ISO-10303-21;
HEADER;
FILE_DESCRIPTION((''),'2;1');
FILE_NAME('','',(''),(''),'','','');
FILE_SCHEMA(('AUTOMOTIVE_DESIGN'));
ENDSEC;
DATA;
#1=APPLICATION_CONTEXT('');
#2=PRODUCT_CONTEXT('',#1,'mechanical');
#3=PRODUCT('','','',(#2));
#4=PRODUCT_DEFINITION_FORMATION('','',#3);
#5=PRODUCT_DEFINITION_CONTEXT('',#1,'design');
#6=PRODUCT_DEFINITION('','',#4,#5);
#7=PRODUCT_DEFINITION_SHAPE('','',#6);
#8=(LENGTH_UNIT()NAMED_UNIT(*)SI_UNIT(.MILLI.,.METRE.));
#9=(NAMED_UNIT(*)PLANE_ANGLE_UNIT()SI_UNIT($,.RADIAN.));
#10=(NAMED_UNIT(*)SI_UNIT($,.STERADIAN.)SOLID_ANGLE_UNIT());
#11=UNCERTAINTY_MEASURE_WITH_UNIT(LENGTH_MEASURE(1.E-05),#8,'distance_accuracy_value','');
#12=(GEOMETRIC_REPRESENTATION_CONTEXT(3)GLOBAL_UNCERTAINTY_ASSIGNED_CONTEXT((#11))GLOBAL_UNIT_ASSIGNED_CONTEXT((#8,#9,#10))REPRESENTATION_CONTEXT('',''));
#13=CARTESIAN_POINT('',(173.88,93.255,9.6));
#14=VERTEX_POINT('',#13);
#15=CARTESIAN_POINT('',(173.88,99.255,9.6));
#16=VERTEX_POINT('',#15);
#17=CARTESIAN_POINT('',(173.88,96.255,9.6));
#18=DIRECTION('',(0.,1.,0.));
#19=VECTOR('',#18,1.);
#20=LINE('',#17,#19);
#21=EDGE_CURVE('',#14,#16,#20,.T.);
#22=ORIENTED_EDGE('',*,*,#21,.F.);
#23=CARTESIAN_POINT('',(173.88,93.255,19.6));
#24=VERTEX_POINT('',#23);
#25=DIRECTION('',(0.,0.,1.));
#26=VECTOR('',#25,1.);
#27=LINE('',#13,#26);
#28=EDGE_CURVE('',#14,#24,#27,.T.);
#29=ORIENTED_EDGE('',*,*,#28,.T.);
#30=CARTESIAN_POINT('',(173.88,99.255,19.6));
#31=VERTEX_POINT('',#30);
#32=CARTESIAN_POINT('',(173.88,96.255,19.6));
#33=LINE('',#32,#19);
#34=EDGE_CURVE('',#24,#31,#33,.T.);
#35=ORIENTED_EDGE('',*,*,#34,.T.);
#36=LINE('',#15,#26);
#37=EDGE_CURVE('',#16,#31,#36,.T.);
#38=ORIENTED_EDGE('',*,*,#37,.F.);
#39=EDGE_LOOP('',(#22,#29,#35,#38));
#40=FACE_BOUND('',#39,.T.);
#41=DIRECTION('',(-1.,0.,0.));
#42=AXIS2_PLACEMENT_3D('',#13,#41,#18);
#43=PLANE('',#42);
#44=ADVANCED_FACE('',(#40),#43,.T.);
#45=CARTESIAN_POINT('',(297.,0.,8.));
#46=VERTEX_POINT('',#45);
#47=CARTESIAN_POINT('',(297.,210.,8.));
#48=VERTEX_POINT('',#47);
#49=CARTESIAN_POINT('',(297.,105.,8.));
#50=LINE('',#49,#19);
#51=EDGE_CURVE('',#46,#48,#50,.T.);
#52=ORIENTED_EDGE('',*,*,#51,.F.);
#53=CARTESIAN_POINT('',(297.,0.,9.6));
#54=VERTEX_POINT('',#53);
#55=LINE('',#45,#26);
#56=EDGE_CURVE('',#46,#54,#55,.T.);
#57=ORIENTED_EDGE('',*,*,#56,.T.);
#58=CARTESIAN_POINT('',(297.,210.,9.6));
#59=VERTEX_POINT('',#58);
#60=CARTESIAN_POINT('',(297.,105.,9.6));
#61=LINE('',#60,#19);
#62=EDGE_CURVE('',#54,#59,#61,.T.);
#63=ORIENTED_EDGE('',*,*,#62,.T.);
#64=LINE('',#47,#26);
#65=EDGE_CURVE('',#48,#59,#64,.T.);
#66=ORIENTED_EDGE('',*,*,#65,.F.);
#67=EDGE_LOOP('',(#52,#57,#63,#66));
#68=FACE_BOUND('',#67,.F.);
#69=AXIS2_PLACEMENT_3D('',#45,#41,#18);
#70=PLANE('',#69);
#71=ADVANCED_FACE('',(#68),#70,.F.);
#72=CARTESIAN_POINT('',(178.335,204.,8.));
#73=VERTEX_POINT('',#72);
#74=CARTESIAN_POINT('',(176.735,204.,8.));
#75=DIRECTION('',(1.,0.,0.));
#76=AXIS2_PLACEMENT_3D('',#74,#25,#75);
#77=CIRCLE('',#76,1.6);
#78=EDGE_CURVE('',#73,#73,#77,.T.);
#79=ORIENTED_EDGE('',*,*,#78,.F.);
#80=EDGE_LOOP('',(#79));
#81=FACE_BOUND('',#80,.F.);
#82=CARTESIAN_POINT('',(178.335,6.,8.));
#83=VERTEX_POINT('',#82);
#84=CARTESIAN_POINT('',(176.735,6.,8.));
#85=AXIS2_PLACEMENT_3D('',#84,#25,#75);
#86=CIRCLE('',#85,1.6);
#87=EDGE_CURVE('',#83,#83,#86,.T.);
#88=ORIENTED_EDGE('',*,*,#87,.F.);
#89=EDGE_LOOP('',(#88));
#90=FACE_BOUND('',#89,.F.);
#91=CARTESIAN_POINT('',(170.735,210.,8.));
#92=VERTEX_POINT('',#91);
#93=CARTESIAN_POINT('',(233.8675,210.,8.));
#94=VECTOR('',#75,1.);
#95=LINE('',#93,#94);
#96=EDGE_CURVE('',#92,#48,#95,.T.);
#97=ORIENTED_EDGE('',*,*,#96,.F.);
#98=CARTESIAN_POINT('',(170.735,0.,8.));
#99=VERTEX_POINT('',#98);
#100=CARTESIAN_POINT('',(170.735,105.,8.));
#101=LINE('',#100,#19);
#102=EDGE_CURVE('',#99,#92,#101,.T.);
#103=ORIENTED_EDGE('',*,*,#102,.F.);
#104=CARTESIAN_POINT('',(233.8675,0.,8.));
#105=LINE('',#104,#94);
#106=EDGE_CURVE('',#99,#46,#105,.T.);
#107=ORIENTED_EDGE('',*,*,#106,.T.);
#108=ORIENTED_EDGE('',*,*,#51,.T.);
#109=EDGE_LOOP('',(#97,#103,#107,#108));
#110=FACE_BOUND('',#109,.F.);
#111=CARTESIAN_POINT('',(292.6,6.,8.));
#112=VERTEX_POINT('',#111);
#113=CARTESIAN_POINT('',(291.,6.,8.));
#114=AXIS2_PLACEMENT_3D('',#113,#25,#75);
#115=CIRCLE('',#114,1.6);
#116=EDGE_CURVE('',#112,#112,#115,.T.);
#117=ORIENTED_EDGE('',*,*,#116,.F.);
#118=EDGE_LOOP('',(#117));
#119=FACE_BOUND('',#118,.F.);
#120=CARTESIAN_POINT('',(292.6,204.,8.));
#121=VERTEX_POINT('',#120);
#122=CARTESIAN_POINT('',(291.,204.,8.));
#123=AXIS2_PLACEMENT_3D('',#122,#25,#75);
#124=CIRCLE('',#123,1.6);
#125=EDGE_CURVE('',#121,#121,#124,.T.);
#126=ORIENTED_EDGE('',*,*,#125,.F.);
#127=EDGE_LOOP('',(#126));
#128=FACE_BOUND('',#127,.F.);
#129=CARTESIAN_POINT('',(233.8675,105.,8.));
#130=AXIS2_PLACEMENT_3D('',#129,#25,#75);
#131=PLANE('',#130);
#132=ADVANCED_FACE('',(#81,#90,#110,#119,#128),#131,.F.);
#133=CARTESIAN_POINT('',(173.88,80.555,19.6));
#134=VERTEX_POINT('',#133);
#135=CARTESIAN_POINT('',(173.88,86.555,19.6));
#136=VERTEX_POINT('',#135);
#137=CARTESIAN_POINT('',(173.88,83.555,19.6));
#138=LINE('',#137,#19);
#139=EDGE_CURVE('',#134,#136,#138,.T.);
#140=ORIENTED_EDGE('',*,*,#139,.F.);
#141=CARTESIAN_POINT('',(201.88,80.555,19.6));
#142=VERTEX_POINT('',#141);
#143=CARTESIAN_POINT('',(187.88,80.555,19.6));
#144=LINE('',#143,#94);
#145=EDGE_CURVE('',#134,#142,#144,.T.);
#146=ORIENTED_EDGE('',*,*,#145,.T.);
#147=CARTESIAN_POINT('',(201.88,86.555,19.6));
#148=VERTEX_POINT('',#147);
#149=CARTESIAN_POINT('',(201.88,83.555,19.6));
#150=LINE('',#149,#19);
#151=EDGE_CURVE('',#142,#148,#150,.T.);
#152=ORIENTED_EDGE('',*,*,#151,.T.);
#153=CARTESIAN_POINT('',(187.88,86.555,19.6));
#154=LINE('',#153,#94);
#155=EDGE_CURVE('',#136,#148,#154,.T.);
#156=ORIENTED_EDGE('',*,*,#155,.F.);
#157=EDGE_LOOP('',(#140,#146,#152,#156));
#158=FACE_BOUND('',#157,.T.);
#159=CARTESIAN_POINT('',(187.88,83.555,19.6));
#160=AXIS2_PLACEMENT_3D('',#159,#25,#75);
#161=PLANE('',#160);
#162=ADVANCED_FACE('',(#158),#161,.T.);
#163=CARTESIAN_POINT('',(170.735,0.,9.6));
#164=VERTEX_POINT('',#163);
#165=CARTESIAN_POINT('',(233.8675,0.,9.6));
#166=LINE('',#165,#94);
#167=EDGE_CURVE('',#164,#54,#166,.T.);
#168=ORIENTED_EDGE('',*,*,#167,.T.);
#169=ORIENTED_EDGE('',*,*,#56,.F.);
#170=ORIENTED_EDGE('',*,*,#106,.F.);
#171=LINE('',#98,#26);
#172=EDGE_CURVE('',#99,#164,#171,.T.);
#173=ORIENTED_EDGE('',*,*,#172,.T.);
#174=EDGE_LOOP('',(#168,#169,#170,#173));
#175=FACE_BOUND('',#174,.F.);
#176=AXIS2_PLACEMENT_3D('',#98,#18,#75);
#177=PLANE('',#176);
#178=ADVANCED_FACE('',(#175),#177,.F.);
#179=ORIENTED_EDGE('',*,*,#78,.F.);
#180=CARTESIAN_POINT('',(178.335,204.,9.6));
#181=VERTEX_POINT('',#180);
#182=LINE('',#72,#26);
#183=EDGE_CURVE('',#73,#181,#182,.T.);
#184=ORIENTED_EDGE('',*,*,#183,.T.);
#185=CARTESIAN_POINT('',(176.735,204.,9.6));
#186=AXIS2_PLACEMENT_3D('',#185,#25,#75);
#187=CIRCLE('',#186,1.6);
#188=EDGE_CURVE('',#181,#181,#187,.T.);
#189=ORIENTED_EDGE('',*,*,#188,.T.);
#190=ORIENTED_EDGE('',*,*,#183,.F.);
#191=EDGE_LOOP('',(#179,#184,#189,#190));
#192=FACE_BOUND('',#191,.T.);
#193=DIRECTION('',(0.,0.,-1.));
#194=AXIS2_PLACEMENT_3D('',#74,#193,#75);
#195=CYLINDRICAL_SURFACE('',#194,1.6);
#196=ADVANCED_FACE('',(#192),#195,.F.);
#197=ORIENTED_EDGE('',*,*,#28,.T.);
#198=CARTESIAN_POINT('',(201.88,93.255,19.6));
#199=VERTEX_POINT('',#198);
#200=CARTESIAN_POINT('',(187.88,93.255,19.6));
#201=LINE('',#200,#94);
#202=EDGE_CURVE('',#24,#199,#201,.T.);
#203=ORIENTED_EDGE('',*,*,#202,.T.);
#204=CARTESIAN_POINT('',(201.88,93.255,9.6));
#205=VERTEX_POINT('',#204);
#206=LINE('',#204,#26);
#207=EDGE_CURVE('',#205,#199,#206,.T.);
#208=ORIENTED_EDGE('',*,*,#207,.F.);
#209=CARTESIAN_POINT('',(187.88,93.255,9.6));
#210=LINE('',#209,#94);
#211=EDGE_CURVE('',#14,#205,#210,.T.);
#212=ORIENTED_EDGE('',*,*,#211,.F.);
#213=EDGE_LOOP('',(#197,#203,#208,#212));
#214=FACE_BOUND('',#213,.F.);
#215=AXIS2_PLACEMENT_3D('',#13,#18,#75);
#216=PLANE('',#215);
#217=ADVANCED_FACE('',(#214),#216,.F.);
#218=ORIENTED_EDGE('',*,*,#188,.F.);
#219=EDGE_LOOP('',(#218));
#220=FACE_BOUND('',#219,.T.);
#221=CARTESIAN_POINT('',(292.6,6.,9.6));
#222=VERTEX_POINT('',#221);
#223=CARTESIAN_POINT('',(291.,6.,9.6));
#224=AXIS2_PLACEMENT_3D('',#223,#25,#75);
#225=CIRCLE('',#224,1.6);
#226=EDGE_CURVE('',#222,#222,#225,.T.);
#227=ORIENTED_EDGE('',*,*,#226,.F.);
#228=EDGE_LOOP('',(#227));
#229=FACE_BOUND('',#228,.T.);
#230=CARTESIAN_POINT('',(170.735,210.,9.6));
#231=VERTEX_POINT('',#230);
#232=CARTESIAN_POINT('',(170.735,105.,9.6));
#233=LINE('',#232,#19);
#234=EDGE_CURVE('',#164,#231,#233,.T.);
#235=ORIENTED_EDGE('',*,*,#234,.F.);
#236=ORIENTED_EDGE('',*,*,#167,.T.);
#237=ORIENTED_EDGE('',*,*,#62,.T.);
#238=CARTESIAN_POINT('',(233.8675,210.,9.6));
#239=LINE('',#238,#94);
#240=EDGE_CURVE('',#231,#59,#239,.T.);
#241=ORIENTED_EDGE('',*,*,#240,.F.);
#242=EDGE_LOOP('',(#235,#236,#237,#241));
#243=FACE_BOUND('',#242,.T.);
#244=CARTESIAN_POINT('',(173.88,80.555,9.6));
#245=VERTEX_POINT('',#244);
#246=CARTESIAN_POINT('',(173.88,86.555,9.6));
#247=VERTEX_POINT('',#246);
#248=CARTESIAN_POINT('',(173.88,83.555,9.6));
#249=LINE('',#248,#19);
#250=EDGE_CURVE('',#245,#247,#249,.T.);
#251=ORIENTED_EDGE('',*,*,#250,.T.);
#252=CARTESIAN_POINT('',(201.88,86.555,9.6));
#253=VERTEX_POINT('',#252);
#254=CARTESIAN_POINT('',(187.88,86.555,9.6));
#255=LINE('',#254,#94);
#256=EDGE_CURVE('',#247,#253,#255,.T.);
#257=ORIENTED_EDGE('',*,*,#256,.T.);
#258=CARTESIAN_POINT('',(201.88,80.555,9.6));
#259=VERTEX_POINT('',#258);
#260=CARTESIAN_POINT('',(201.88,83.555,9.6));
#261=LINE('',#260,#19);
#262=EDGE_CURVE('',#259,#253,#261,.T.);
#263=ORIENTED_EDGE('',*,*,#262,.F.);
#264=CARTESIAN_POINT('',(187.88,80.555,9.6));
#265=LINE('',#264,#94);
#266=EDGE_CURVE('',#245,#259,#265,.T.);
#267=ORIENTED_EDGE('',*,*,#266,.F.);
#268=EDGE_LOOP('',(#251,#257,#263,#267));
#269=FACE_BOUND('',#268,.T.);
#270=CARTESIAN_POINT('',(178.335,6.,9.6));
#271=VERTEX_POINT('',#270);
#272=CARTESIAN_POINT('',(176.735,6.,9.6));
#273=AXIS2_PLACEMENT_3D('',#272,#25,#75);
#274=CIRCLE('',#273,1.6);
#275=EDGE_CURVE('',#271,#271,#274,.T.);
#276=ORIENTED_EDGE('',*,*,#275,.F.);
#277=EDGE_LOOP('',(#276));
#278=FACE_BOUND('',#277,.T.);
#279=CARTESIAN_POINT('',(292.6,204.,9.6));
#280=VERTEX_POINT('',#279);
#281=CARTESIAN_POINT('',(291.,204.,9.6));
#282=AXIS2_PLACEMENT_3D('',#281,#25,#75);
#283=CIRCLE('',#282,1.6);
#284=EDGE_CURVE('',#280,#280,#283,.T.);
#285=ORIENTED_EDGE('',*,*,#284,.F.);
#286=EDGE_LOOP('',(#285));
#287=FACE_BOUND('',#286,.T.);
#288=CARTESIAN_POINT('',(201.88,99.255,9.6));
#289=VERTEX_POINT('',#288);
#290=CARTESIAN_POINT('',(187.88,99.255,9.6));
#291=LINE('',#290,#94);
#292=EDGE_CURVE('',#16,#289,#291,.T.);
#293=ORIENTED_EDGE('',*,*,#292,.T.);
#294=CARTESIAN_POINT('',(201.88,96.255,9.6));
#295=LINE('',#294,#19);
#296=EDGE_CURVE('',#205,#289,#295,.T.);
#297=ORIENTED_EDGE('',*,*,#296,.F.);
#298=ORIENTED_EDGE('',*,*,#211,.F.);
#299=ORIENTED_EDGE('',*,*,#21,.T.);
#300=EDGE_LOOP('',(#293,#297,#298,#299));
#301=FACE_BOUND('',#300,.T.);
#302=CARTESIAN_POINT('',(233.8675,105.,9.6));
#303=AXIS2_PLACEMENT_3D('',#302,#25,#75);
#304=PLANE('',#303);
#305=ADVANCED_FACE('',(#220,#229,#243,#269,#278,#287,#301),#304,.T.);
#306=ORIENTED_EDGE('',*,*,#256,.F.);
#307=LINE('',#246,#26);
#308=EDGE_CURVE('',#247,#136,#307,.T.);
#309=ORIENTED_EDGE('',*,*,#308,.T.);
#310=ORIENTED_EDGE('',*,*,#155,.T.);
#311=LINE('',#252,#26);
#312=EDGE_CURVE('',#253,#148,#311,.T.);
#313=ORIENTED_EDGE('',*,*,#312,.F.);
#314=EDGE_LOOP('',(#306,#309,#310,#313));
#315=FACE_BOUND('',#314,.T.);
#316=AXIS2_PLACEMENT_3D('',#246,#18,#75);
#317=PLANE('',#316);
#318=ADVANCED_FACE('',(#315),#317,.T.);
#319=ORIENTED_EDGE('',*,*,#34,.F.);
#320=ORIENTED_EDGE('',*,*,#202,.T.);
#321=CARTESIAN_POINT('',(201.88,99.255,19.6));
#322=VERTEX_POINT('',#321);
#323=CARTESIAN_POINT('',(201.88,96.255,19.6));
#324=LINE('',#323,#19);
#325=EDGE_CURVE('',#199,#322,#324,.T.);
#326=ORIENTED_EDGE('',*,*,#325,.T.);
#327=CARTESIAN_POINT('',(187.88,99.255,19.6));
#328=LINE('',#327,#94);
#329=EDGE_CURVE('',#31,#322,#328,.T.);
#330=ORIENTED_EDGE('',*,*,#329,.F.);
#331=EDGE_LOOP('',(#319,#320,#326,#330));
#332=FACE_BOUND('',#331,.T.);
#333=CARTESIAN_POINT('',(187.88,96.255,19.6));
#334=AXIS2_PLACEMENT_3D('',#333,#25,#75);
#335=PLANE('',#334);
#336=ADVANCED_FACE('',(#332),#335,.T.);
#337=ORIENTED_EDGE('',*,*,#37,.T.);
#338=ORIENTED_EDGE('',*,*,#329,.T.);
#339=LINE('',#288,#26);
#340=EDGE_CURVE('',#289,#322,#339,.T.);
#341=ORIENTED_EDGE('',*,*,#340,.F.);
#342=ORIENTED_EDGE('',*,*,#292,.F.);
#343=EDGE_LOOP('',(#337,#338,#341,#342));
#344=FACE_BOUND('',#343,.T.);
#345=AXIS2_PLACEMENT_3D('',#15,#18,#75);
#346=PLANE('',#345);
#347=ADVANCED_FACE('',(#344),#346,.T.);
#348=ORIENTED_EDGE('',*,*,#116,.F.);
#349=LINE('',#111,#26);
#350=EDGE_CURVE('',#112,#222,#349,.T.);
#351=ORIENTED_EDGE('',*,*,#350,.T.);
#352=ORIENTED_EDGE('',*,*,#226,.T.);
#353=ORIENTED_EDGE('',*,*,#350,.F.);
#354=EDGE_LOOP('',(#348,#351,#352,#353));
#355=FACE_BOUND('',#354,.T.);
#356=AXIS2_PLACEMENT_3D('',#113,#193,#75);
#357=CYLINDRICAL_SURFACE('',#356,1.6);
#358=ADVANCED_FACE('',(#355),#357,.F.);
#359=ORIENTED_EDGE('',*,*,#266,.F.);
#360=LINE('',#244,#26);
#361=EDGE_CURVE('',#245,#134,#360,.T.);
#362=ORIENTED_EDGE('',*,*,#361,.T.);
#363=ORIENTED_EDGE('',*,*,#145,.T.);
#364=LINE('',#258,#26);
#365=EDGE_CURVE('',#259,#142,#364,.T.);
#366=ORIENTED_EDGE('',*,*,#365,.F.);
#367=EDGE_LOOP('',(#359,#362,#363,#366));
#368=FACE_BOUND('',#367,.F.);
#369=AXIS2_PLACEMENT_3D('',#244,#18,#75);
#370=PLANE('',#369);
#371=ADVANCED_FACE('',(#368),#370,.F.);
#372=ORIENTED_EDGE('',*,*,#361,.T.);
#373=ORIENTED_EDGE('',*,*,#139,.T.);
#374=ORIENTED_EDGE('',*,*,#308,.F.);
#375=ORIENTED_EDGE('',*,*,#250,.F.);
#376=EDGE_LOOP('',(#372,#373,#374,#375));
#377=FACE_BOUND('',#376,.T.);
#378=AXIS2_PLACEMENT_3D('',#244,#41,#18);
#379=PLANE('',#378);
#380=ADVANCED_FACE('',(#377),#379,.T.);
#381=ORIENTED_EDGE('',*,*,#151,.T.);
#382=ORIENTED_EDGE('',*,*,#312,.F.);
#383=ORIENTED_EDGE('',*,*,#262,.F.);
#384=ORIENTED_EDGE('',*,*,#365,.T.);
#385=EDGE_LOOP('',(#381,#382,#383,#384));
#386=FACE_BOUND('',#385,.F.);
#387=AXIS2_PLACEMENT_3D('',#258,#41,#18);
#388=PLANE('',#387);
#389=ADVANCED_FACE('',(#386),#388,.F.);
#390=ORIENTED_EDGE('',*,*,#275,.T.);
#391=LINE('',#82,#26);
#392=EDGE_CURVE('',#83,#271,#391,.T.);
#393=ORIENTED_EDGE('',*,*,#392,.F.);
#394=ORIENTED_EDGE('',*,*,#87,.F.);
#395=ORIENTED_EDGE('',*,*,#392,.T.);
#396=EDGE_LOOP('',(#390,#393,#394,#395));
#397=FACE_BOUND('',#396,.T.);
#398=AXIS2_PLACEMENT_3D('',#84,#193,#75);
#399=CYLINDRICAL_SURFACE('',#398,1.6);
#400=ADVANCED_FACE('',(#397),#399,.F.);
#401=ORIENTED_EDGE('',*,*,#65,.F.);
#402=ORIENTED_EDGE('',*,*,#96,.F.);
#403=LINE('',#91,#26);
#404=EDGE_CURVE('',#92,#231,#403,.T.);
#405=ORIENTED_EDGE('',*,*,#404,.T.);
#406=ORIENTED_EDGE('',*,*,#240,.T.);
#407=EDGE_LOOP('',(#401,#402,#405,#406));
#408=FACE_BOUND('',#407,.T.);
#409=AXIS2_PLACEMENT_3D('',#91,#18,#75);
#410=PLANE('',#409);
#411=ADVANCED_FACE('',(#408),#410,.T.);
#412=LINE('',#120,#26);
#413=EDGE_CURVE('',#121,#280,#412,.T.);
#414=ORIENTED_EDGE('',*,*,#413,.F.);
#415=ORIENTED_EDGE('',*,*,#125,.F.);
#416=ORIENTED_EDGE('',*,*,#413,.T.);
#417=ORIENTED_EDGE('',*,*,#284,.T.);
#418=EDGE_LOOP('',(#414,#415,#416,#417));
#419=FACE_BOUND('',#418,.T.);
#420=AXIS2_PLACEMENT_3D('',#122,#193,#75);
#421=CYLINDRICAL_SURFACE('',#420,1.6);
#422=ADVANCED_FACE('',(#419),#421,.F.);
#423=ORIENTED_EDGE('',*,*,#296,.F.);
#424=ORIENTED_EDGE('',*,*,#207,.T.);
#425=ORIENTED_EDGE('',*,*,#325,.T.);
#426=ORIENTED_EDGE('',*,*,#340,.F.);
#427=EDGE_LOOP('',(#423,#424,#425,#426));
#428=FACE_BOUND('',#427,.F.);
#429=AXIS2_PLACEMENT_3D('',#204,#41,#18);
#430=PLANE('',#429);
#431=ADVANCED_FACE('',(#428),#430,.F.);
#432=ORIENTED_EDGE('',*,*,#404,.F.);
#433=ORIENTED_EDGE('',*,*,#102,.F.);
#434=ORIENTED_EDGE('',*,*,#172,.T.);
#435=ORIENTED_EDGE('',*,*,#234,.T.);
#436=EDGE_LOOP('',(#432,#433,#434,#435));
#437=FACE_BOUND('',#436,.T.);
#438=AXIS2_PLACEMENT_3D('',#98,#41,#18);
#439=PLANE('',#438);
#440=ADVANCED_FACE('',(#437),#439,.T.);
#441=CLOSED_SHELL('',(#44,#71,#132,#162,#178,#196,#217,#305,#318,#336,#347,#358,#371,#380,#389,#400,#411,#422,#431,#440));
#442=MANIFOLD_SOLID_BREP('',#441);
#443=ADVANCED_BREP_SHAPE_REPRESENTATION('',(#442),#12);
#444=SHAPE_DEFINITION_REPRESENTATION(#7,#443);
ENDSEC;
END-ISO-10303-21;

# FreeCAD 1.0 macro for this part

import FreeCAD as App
import Part
import Sketcher

V = App.Vector


def add_polygon(sketch, points):
    """Adds a closed chain of lines whose ends are joined by coincident constraints."""
    first, n = sketch.GeometryCount, len(points)
    for a, b in zip(points, points[1:] + points[:1]):
        sketch.addGeometry(Part.LineSegment(App.Vector(*a, 0), App.Vector(*b, 0)), False)
    for i in range(n):
        sketch.addConstraint(Sketcher.Constraint("Coincident", first + i, 2, first + (i + 1) % n, 1))

doc = App.newDocument("Part")
body = doc.addObject("PartDesign::Body", "Body")

sketch1 = doc.addObject("Sketcher::SketchObject", "Sketch")
body.addObject(sketch1)
sketch1.AttachmentSupport = (doc.XY_Plane, [""])
sketch1.MapMode = "FlatFace"
sketch1.AttachmentOffset = App.Placement(V(0, 0, 8), App.Rotation())
add_polygon(sketch1, [(170.735, 210), (170.735, 0), (297, 0), (297, 210)])
sketch1.addGeometry(Part.Circle(V(176.735, 6, 0), V(0, 0, 1), 1.6), False)
sketch1.addGeometry(Part.Circle(V(291, 6, 0), V(0, 0, 1), 1.6), False)
sketch1.addGeometry(Part.Circle(V(176.735, 204, 0), V(0, 0, 1), 1.6), False)
sketch1.addGeometry(Part.Circle(V(291, 204, 0), V(0, 0, 1), 1.6), False)
sketch1.addConstraint([
    Sketcher.Constraint("Vertical", 0),
    Sketcher.Constraint("Horizontal", 1),
    Sketcher.Constraint("Vertical", 2),
    Sketcher.Constraint("Horizontal", 3),
    Sketcher.Constraint("Equal", 4, 5),
    Sketcher.Constraint("Equal", 5, 6),
    Sketcher.Constraint("Equal", 6, 7),
    Sketcher.Constraint("PointOnObject", 0, 2, -1),
    Sketcher.Constraint("Horizontal", 4, 3, 5, 3),
    Sketcher.Constraint("Horizontal", 6, 3, 7, 3),
    Sketcher.Constraint("Vertical", 4, 3, 6, 3),
    Sketcher.Constraint("Vertical", 5, 3, 7, 3),
    Sketcher.Constraint("Diameter", 4, 3.2),
    Sketcher.Constraint("DistanceY", 0, 2, 0, 1, 210.0),
    Sketcher.Constraint("DistanceY", -1, 1, 4, 3, 6.0),
    Sketcher.Constraint("DistanceX", -1, 1, 5, 3, 291.0),
    Sketcher.Constraint("DistanceY", -1, 1, 6, 3, 204.0),
    Sketcher.Constraint("DistanceX", -1, 1, 1, 2, 297.0),
    Sketcher.Constraint("DistanceX", 0, 2, 4, 3, 6.0),
    Sketcher.Constraint("DistanceX", 1, 1, 1, 2, 126.265),
])
pad1 = doc.addObject("PartDesign::Pad", "Pad")
body.addObject(pad1)
pad1.Profile = sketch1
pad1.Length = 1.6
body2 = doc.addObject("PartDesign::Body", "Body001")
body2.AllowCompound = True

sketch2 = doc.addObject("Sketcher::SketchObject", "Sketch001")
body2.addObject(sketch2)
sketch2.AttachmentSupport = (doc.getObject("XY_Plane001"), [""])
sketch2.MapMode = "FlatFace"
sketch2.AttachmentOffset = App.Placement(V(0, 0, 9.6), App.Rotation())
add_polygon(sketch2, [(173.88, 99.255), (173.88, 93.255), (201.88, 93.255), (201.88, 99.255)])
add_polygon(sketch2, [(173.88, 86.555), (173.88, 80.555), (201.88, 80.555), (201.88, 86.555)])
sketch2.addConstraint([
    Sketcher.Constraint("Vertical", 0),
    Sketcher.Constraint("Horizontal", 1),
    Sketcher.Constraint("Vertical", 2),
    Sketcher.Constraint("Horizontal", 3),
    Sketcher.Constraint("Vertical", 4),
    Sketcher.Constraint("Horizontal", 5),
    Sketcher.Constraint("Vertical", 6),
    Sketcher.Constraint("Horizontal", 7),
    Sketcher.Constraint("Vertical", 3, 2, 4, 2),
    Sketcher.Constraint("Vertical", 2, 2, 5, 2),
    Sketcher.Constraint("Equal", 2, 4),
    Sketcher.Constraint("DistanceX", 1, 1, 1, 2, 28.0),
    Sketcher.Constraint("DistanceY", 0, 2, 0, 1, 6.0),
    Sketcher.Constraint("DistanceY", 4, 2, 0, 2, 12.7),
    Sketcher.Constraint("DistanceX", -1, 1, 0, 2, 173.88),
    Sketcher.Constraint("DistanceY", -1, 1, 0, 2, 93.255),
])
pad2 = doc.addObject("PartDesign::Pad", "Pad001")
body2.addObject(pad2)
pad2.Profile = sketch2
pad2.Length = 10
doc.recompute()

boolean = doc.addObject("PartDesign::Boolean", "Boolean")
body2.addObject(boolean)
boolean.Type = "Fuse"
boolean.addObjects([body])

doc.recompute()
